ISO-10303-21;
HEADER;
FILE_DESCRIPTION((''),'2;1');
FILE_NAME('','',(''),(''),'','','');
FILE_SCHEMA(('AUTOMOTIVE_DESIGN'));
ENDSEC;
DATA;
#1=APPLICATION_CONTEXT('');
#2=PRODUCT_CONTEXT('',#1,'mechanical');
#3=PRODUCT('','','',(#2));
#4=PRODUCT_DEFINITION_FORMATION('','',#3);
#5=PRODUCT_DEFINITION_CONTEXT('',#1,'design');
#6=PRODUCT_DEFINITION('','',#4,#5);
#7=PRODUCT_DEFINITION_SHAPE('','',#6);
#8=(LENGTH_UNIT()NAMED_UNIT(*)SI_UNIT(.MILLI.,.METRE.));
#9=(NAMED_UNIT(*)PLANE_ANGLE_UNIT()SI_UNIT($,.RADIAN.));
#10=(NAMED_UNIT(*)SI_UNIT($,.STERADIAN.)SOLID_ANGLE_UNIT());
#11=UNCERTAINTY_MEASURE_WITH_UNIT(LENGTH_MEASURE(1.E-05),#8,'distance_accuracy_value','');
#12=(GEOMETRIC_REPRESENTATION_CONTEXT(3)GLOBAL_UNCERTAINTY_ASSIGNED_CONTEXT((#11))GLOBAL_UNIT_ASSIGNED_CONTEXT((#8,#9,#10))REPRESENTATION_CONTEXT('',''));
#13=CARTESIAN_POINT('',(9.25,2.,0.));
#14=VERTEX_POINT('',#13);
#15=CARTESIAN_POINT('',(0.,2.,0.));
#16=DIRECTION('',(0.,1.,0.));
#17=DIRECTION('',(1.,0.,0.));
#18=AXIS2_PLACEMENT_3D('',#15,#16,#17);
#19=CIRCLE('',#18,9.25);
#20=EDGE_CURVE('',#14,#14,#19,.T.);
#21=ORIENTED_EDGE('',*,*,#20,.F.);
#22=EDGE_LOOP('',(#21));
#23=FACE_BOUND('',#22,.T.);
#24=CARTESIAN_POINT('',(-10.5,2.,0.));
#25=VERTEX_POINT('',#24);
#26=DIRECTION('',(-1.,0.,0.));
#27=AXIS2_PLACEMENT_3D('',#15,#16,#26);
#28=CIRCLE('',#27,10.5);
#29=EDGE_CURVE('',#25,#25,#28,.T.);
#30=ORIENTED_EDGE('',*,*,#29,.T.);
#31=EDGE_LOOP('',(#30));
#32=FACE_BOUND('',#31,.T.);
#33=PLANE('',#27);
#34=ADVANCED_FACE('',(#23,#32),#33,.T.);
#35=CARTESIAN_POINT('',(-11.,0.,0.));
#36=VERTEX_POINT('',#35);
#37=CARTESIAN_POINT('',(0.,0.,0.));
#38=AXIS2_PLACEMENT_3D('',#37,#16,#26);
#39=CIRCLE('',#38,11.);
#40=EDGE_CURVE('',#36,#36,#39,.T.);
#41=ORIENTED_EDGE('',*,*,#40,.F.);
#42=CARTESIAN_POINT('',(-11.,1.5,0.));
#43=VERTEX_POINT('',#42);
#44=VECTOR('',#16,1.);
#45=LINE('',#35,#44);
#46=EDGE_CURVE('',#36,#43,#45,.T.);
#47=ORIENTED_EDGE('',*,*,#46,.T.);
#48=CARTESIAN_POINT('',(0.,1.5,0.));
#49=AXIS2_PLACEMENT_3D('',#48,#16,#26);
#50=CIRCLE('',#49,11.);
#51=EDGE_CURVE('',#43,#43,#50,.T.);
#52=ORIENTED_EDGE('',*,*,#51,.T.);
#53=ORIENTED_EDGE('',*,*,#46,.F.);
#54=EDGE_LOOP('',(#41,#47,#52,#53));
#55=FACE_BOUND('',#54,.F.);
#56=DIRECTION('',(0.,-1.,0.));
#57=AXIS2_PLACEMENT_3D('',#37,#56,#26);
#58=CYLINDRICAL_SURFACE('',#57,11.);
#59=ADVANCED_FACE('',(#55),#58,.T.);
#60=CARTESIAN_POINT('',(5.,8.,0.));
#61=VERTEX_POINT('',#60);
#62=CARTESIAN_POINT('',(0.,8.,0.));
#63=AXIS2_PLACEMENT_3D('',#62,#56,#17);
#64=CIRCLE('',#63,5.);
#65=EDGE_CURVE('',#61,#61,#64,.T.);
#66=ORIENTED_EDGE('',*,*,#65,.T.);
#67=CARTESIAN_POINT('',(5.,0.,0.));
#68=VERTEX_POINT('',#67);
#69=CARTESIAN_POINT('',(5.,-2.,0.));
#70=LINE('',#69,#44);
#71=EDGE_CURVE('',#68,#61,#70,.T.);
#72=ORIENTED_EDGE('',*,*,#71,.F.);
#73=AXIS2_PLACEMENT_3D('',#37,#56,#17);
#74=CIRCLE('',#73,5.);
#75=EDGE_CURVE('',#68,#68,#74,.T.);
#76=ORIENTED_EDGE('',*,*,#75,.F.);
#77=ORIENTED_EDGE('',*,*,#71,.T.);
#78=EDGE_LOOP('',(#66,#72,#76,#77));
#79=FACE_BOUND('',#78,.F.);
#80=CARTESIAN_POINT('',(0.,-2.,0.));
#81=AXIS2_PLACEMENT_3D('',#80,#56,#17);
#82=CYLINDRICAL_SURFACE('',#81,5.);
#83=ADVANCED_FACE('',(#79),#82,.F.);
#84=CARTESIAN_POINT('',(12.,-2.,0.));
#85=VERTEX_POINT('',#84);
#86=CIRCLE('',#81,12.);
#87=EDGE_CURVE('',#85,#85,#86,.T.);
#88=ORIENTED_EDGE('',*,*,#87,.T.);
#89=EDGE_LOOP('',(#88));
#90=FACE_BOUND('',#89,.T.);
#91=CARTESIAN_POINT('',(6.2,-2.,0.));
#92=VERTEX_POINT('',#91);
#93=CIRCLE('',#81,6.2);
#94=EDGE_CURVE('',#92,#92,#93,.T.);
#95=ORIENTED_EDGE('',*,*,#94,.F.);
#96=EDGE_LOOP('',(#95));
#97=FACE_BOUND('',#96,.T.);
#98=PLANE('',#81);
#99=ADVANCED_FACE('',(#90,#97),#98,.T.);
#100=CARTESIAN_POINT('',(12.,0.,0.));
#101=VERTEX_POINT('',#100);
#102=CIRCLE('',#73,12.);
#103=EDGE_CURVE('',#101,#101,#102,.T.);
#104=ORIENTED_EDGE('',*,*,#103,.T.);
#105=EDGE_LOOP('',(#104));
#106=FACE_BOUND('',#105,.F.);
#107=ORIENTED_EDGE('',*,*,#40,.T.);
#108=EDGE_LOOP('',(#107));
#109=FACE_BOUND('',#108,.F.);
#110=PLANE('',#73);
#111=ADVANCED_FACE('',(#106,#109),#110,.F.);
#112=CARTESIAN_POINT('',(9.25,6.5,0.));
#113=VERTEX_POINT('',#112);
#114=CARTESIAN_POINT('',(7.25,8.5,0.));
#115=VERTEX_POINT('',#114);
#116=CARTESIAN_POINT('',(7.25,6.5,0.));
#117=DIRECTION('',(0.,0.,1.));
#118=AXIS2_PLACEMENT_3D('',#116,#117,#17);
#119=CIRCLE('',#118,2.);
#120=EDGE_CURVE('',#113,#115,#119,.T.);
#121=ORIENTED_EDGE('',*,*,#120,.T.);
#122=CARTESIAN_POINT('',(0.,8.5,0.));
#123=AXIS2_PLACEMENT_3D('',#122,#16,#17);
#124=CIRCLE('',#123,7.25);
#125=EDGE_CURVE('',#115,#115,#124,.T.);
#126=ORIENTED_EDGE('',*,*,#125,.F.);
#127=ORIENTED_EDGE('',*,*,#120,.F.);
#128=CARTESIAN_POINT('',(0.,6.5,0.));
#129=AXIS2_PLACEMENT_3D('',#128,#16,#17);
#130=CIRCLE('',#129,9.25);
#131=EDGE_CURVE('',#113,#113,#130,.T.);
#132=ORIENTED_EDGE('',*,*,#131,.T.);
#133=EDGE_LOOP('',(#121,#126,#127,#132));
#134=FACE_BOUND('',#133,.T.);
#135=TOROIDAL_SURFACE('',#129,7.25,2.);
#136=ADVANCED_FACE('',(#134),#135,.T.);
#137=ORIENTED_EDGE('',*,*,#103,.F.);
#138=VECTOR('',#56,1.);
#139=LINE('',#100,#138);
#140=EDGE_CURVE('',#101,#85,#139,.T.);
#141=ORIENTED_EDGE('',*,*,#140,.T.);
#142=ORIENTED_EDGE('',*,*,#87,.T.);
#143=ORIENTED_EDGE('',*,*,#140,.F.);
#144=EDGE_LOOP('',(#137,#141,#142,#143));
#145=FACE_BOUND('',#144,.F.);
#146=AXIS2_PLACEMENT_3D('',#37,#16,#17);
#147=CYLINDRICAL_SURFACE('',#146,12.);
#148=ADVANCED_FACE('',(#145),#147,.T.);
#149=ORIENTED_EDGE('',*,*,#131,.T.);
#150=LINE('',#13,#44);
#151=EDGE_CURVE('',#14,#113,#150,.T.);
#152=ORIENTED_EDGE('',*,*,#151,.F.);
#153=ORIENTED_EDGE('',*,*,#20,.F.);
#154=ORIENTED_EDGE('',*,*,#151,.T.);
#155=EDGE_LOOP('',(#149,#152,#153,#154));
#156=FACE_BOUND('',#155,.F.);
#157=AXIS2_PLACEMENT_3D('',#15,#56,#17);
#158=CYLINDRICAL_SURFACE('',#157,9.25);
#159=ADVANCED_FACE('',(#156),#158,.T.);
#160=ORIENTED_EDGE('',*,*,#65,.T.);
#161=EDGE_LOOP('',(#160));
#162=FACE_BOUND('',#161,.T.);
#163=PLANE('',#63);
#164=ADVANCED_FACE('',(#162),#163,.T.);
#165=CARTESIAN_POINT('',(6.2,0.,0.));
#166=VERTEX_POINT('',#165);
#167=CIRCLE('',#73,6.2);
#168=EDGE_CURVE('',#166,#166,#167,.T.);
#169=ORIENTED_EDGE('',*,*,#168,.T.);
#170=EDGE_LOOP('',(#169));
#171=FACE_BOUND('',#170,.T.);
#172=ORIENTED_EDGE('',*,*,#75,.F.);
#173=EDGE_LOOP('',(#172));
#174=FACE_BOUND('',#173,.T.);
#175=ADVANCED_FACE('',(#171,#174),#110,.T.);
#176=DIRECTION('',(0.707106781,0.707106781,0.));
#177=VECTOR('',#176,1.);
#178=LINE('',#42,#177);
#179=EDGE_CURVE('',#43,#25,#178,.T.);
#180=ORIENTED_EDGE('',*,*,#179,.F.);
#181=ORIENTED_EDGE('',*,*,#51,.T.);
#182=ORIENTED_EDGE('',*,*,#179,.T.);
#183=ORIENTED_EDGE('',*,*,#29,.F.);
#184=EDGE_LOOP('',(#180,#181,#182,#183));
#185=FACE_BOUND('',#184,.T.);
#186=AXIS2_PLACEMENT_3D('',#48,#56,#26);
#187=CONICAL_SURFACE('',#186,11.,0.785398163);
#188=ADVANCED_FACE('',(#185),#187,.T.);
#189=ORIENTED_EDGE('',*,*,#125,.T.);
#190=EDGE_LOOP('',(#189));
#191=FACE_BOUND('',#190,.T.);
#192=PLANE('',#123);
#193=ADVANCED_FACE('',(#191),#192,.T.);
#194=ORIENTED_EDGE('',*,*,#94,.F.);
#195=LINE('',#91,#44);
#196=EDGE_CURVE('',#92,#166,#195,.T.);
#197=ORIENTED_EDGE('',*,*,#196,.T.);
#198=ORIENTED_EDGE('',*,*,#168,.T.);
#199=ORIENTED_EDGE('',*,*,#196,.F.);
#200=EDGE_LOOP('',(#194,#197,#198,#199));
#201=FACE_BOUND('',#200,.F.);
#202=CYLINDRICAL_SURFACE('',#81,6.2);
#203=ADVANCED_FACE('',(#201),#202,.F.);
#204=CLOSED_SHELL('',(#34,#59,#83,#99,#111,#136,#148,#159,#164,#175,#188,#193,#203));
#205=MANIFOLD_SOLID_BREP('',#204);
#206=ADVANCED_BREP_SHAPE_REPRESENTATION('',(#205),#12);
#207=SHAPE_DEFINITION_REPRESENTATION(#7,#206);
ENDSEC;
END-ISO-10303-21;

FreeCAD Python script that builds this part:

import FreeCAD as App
import Part
import Sketcher
from FreeCAD import Vector
Q = App.Units.Quantity


def edges_at(feature, points):
    """Names of the edges that pass closest to the given points."""
    edges = feature.Shape.Edges
    near = lambda p: min(range(len(edges)), key=lambda i: edges[i].distToShape(Part.Vertex(*p))[0])
    return sorted({f"Edge{near(p) + 1}" for p in points})

doc = App.newDocument("Part")
body = doc.addObject("PartDesign::Body", "Body")

# Sketch on XZ plane
sketch1 = body.newObject("Sketcher::SketchObject", "Sketch")
sketch1.AttachmentSupport = (doc.getObject("XZ_Plane"), [""])
sketch1.MapMode = "FlatFace"
sketch1.addGeometry(Part.Circle(Vector(0, 0, 0), Vector(0, 0, 1), 11), False)
sketch1.addConstraint(Sketcher.Constraint("Coincident", 0, 3, -1, 1))
sketch1.addConstraint(Sketcher.Constraint("Diameter", 0, Q("22 mm")))
pad1 = body.newObject("PartDesign::Pad", "Pad")
pad1.Profile = sketch1
pad1.Length = 2
pad1.Reversed = True

# Sketch on XZ plane
sketch2 = body.newObject("Sketcher::SketchObject", "Sketch001")
sketch2.AttachmentSupport = (doc.getObject("XZ_Plane"), [""])
sketch2.MapMode = "FlatFace"
sketch2.AttachmentOffset = App.Placement(Vector(0, 0, -2), App.Rotation())
sketch2.addGeometry(Part.Circle(Vector(0, 0, 0), Vector(0, 0, 1), 9), False)
sketch2.addConstraint(Sketcher.Constraint("Coincident", 0, 3, -1, 1))
sketch2.addConstraint(Sketcher.Constraint("Diameter", 0, Q("18.5 mm")))
pad2 = body.newObject("PartDesign::Pad", "Pad001")
pad2.Profile = sketch2
pad2.Length = 6.5
pad2.Reversed = True
doc.recompute()

fillet = body.newObject("PartDesign::Fillet", "Fillet")
fillet.Base = (pad2, edges_at(pad2, [(-9.25, 8.5, 0)]))
fillet.Radius = 2

# Sketch on XZ plane
sketch3 = body.newObject("Sketcher::SketchObject", "Sketch002")
sketch3.AttachmentSupport = (doc.getObject("XZ_Plane"), [""])
sketch3.MapMode = "FlatFace"
sketch3.addGeometry(Part.Circle(Vector(0, 0, 0), Vector(0, 0, 1), 12), False)
sketch3.addConstraint(Sketcher.Constraint("Coincident", 0, 3, -1, 1))
sketch3.addConstraint(Sketcher.Constraint("Diameter", 0, Q("24 mm")))
pad3 = body.newObject("PartDesign::Pad", "Pad002")
pad3.Profile = sketch3
pad3.Length = 2
doc.recompute()

chamfer = body.newObject("PartDesign::Chamfer", "Chamfer")
chamfer.Base = (pad3, edges_at(pad3, [(11, 2, 0)]))
chamfer.Size = 0.5

# Sketch on XZ plane
sketch4 = body.newObject("Sketcher::SketchObject", "Sketch003")
sketch4.AttachmentSupport = (doc.getObject("XZ_Plane"), [""])
sketch4.MapMode = "FlatFace"
sketch4.AttachmentOffset = App.Placement(Vector(0, 0, 2), App.Rotation())
sketch4.addGeometry(Part.Circle(Vector(0, 0, 0), Vector(0, 0, 1), 5), False)
sketch4.addConstraint(Sketcher.Constraint("Coincident", 0, 3, -1, 1))
sketch4.addConstraint(Sketcher.Constraint("Diameter", 0, Q("10 mm")))
pocket1 = body.newObject("PartDesign::Pocket", "Pocket")
pocket1.Profile = sketch4
pocket1.Length = 10

# Sketch on XZ plane
sketch5 = body.newObject("Sketcher::SketchObject", "Sketch004")
sketch5.AttachmentSupport = (doc.getObject("XZ_Plane"), [""])
sketch5.MapMode = "FlatFace"
sketch5.AttachmentOffset = App.Placement(Vector(0, 0, 2), App.Rotation())
sketch5.addGeometry(Part.Circle(Vector(0, 0, 0), Vector(0, 0, 1), 6), False)
sketch5.addGeometry(Part.Circle(Vector(0, 0, 0), Vector(0, 0, 1), 5), False)
sketch5.addConstraint(Sketcher.Constraint("Coincident", 0, 3, -1, 1))
sketch5.addConstraint(Sketcher.Constraint("Coincident", 1, 3, -1, 1))
sketch5.addConstraint(Sketcher.Constraint("Diameter", 0, Q("12.4 mm")))
sketch5.addConstraint(Sketcher.Constraint("Diameter", 1, Q("10 mm")))
pocket2 = body.newObject("PartDesign::Pocket", "Pocket001")
pocket2.Profile = sketch5
pocket2.Length = 2

doc.recompute()
